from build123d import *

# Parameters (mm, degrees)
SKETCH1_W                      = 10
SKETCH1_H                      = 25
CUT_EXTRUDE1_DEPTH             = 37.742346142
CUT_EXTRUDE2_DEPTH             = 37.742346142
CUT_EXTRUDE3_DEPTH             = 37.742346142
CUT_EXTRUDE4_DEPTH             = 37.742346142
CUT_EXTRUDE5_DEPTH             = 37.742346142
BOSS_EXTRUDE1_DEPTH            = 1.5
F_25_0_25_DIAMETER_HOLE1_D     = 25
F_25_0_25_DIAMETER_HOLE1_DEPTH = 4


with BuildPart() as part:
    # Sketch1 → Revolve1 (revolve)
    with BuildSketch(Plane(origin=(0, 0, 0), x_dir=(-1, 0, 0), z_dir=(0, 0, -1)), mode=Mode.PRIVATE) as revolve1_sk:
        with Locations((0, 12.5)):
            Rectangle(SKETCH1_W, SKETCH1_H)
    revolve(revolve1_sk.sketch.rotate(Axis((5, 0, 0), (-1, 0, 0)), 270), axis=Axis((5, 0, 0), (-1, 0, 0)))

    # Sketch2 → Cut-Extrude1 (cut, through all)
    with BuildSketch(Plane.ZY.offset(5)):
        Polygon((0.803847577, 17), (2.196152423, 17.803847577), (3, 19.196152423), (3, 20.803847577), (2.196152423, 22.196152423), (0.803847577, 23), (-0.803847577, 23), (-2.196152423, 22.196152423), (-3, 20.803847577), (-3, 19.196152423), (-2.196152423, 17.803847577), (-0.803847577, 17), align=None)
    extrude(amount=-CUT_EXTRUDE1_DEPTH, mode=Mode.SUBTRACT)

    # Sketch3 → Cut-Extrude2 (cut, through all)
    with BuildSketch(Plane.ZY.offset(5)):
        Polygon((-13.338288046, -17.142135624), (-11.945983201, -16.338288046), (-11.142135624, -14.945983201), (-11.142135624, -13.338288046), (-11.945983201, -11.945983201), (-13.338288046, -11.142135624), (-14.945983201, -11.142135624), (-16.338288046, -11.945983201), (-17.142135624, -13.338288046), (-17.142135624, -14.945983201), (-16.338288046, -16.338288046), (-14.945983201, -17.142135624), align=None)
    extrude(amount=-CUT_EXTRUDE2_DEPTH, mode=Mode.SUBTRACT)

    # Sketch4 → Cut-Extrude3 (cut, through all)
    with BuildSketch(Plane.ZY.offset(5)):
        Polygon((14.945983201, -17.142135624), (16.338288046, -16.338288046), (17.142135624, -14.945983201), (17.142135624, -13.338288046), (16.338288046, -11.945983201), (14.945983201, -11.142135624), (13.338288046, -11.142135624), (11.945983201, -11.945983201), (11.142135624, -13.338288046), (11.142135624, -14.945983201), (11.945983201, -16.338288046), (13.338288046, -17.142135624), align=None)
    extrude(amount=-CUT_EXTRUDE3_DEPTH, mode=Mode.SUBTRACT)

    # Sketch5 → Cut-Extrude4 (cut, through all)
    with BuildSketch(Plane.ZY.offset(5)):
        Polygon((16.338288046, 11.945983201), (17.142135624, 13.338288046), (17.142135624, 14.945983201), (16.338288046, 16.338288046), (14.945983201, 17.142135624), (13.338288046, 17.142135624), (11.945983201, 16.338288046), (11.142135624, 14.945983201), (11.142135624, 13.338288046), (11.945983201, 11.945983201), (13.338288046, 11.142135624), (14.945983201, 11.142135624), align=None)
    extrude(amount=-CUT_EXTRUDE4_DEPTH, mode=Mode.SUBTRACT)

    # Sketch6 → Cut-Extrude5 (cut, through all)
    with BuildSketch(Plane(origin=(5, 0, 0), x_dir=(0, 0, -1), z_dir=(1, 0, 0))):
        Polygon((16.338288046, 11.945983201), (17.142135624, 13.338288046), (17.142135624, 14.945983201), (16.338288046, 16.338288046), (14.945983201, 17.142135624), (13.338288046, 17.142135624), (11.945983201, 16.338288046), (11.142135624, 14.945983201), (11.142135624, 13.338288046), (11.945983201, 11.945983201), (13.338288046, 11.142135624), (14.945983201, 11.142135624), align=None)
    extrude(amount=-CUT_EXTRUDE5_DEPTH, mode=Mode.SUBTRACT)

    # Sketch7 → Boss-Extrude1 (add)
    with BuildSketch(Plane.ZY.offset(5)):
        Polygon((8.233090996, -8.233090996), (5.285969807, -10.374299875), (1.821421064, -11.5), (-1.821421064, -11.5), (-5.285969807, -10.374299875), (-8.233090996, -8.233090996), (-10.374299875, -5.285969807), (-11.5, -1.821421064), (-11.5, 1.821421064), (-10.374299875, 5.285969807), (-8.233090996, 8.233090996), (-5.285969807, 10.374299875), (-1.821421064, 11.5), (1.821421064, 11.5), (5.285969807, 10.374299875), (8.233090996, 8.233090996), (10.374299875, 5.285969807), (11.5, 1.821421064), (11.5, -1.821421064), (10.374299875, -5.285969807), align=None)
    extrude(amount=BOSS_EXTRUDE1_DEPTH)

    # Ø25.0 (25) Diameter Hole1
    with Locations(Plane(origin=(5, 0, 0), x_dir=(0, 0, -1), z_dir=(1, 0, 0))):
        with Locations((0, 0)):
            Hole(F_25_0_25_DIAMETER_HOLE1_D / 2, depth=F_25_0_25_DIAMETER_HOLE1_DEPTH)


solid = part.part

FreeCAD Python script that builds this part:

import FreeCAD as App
import Part
import Sketcher

V = App.Vector
Q = App.Units.Quantity


def add_polygon(sketch, points):
    """Adds a closed chain of lines whose ends are joined by coincident constraints."""
    first, n = sketch.GeometryCount, len(points)
    for a, b in zip(points, points[1:] + points[:1]):
        sketch.addGeometry(Part.LineSegment(App.Vector(*a, 0), App.Vector(*b, 0)), False)
    for i in range(n):
        sketch.addConstraint(Sketcher.Constraint("Coincident", first + i, 2, first + (i + 1) % n, 1))

doc = App.newDocument("Part")
body = doc.addObject("PartDesign::Body", "Body")

# Sketch on XY plane
sketch1 = body.newObject("Sketcher::SketchObject", "Sketch")
sketch1.AttachmentSupport = (doc.getObject("XY_Plane"), [""])
sketch1.MapMode = "FlatFace"
add_polygon(sketch1, [(5, 25), (5, 0), (-5, 0), (-5, 25)])  # lines 0-3
sketch1.addConstraint([
    Sketcher.Constraint("Vertical", 0),
    Sketcher.Constraint("Horizontal", 1),
    Sketcher.Constraint("Vertical", 2),
    Sketcher.Constraint("Horizontal", 3),
    Sketcher.Constraint("Symmetric", 0, 2, 1, 2, -1, 1),
    Sketcher.Constraint("DistanceX", 1, 2, 1, 1, 10.0),
    Sketcher.Constraint("DistanceY", 0, 2, 0, 1, 25.0),
])
revolution = body.newObject("PartDesign::Revolution", "Revolution")
revolution.Profile = sketch1
revolution.ReferenceAxis = (sketch1, ["H_Axis"])
revolution.Angle = 360

# Sketch on YZ plane
sketch2 = body.newObject("Sketcher::SketchObject", "Sketch001")
sketch2.AttachmentSupport = (doc.getObject("YZ_Plane"), [""])
sketch2.MapMode = "FlatFace"
sketch2.AttachmentOffset = App.Placement(V(0, 0, -5), App.Rotation())
add_polygon(sketch2, [(17, 0.8), (17.8, 2.2), (19.2, 3), (20.8, 3), (22.2, 2.2), (23, 0.8), (23, -0.8), (22.2, -2.2), (20.8, -3), (19.2, -3), (17.8, -2.2), (17, -0.8)])  # lines 0-11
sketch2.addConstraint([
    Sketcher.Constraint("Horizontal", 2),
    Sketcher.Constraint("Vertical", 5),
    Sketcher.Constraint("Horizontal", 8),
    Sketcher.Constraint("Vertical", 11),
    Sketcher.Constraint("Symmetric", 3, 2, 6, 2, -1),
    Sketcher.Constraint("Symmetric", 2, 2, 7, 2, -1),
    Sketcher.Constraint("Symmetric", 0, 2, 9, 2, -1),
    Sketcher.Constraint("Perpendicular", 0, 3),
    Sketcher.Constraint("Perpendicular", 1, 4),
    Sketcher.Constraint("Perpendicular", 3, 6),
    Sketcher.Constraint("Perpendicular", 4, 7),
    Sketcher.Constraint("Perpendicular", 6, 9),
    Sketcher.Constraint("Perpendicular", 7, 10),
    Sketcher.Constraint("Horizontal", 0, 2, 3, 2),
    Sketcher.Constraint("Horizontal", 5, 2, 10, 2),
    Sketcher.Constraint("Equal", 8, 5),
    Sketcher.Constraint("Equal", 0, 1),
    Sketcher.Constraint("Angle", 0, Q("60 deg")),
    Sketcher.Constraint("DistanceY", -1, 1, 1, 2, 3.0),
    Sketcher.Constraint("DistanceX", -1, 1, 4, 2, 23.0),
    Sketcher.Constraint("DistanceX", 0, 2, 2, 2, 3.0),
])
pocket1 = body.newObject("PartDesign::Pocket", "Pocket")
pocket1.Profile = sketch2
pocket1.Type = "ThroughAll"
pocket1.Reversed = True

# Sketch on YZ plane
sketch3 = body.newObject("Sketcher::SketchObject", "Sketch002")
sketch3.AttachmentSupport = (doc.getObject("YZ_Plane"), [""])
sketch3.MapMode = "FlatFace"
sketch3.AttachmentOffset = App.Placement(V(0, 0, -5), App.Rotation())
add_polygon(sketch3, [(-17.1, -13.3), (-16.3, -11.9), (-14.9, -11.1), (-13.3, -11.1), (-11.9, -11.9), (-11.1, -13.3), (-11.1, -14.9), (-11.9, -16.3), (-13.3, -17.1), (-14.9, -17.1), (-16.3, -16.3), (-17.1, -14.9)])  # lines 0-11
sketch3.addConstraint([
    Sketcher.Constraint("Horizontal", 2),
    Sketcher.Constraint("Vertical", 5),
    Sketcher.Constraint("Horizontal", 8),
    Sketcher.Constraint("Vertical", 11),
    Sketcher.Constraint("Perpendicular", 0, 3),
    Sketcher.Constraint("Perpendicular", 1, 4),
    Sketcher.Constraint("Perpendicular", 3, 6),
    Sketcher.Constraint("Perpendicular", 4, 7),
    Sketcher.Constraint("Perpendicular", 6, 9),
    Sketcher.Constraint("Perpendicular", 7, 10),
    Sketcher.Constraint("Horizontal", 0, 2, 3, 2),
    Sketcher.Constraint("Horizontal", 6, 2, 9, 2),
    Sketcher.Constraint("Horizontal", 5, 2, 10, 2),
    Sketcher.Constraint("Horizontal", 4, 2, 11, 2),
    Sketcher.Constraint("Vertical", 3, 2, 6, 2),
    Sketcher.Constraint("Vertical", 2, 2, 7, 2),
    Sketcher.Constraint("Vertical", 1, 2, 8, 2),
    Sketcher.Constraint("Equal", 8, 5),
    Sketcher.Constraint("Equal", 0, 1),
    Sketcher.Constraint("Angle", 0, Q("60 deg")),
    Sketcher.Constraint("DistanceX", 0, 2, 2, 2, 3.0),
    Sketcher.Constraint("DistanceY", 7, 2, 2, 2, 6.0),
    Sketcher.Constraint("DistanceX", 0, 2, -1, 1, 16.338288),
    Sketcher.Constraint("DistanceY", 4, 2, -1, 1, 13.338288),
])
pocket2 = body.newObject("PartDesign::Pocket", "Pocket001")
pocket2.Profile = sketch3
pocket2.Type = "ThroughAll"
pocket2.Reversed = True

# Sketch on YZ plane
sketch4 = body.newObject("Sketcher::SketchObject", "Sketch003")
sketch4.AttachmentSupport = (doc.getObject("YZ_Plane"), [""])
sketch4.MapMode = "FlatFace"
sketch4.AttachmentOffset = App.Placement(V(0, 0, -5), App.Rotation())
add_polygon(sketch4, [(-17.1, 14.9), (-16.3, 16.3), (-14.9, 17.1), (-13.3, 17.1), (-11.9, 16.3), (-11.1, 14.9), (-11.1, 13.3), (-11.9, 11.9), (-13.3, 11.1), (-14.9, 11.1), (-16.3, 11.9), (-17.1, 13.3)])  # lines 0-11
sketch4.addConstraint([
    Sketcher.Constraint("Horizontal", 2),
    Sketcher.Constraint("Vertical", 5),
    Sketcher.Constraint("Horizontal", 8),
    Sketcher.Constraint("Vertical", 11),
    Sketcher.Constraint("Perpendicular", 0, 3),
    Sketcher.Constraint("Perpendicular", 1, 4),
    Sketcher.Constraint("Perpendicular", 3, 6),
    Sketcher.Constraint("Perpendicular", 4, 7),
    Sketcher.Constraint("Perpendicular", 6, 9),
    Sketcher.Constraint("Perpendicular", 7, 10),
    Sketcher.Constraint("Horizontal", 0, 2, 3, 2),
    Sketcher.Constraint("Horizontal", 6, 2, 9, 2),
    Sketcher.Constraint("Horizontal", 5, 2, 10, 2),
    Sketcher.Constraint("Horizontal", 4, 2, 11, 2),
    Sketcher.Constraint("Vertical", 3, 2, 6, 2),
    Sketcher.Constraint("Vertical", 2, 2, 7, 2),
    Sketcher.Constraint("Vertical", 1, 2, 8, 2),
    Sketcher.Constraint("Equal", 8, 5),
    Sketcher.Constraint("Equal", 0, 1),
    Sketcher.Constraint("Angle", 0, Q("60 deg")),
    Sketcher.Constraint("DistanceX", 0, 2, 2, 2, 3.0),
    Sketcher.Constraint("DistanceX", 2, 1, 2, 2, 1.607695),
    Sketcher.Constraint("DistanceX", 0, 2, -1, 1, 16.338288),
    Sketcher.Constraint("DistanceY", -1, 1, 0, 2, 16.338288),
])
pocket3 = body.newObject("PartDesign::Pocket", "Pocket002")
pocket3.Profile = sketch4
pocket3.Type = "ThroughAll"
pocket3.Reversed = True

# Sketch on YZ plane
sketch5 = body.newObject("Sketcher::SketchObject", "Sketch004")
sketch5.AttachmentSupport = (doc.getObject("YZ_Plane"), [""])
sketch5.MapMode = "FlatFace"
sketch5.AttachmentOffset = App.Placement(V(0, 0, -5), App.Rotation())
add_polygon(sketch5, [(11.9, 16.3), (13.3, 17.1), (14.9, 17.1), (16.3, 16.3), (17.1, 14.9), (17.1, 13.3), (16.3, 11.9), (14.9, 11.1), (13.3, 11.1), (11.9, 11.9), (11.1, 13.3), (11.1, 14.9)])  # lines 0-11
sketch5.addConstraint([
    Sketcher.Constraint("Horizontal", 1),
    Sketcher.Constraint("Vertical", 4),
    Sketcher.Constraint("Horizontal", 7),
    Sketcher.Constraint("Vertical", 10),
    Sketcher.Constraint("Perpendicular", 0, 3),
    Sketcher.Constraint("Perpendicular", 2, 5),
    Sketcher.Constraint("Perpendicular", 3, 6),
    Sketcher.Constraint("Perpendicular", 5, 8),
    Sketcher.Constraint("Perpendicular", 6, 9),
    Sketcher.Constraint("Perpendicular", 8, 11),
    Sketcher.Constraint("Horizontal", 5, 2, 8, 2),
    Sketcher.Constraint("Horizontal", 4, 2, 9, 2),
    Sketcher.Constraint("Horizontal", 3, 2, 10, 2),
    Sketcher.Constraint("Horizontal", 2, 2, 11, 2),
    Sketcher.Constraint("Vertical", 2, 2, 5, 2),
    Sketcher.Constraint("Vertical", 1, 2, 6, 2),
    Sketcher.Constraint("Vertical", 0, 2, 7, 2),
    Sketcher.Constraint("Equal", 7, 4),
    Sketcher.Constraint("Equal", 2, 3),
    Sketcher.Constraint("Angle", 0, Q("30 deg")),
    Sketcher.Constraint("DistanceX", 0, 2, 2, 2, 3.0),
    Sketcher.Constraint("DistanceY", 6, 2, 1, 2, 6.0),
    Sketcher.Constraint("DistanceX", -1, 1, 0, 2, 13.338288),
    Sketcher.Constraint("DistanceY", -1, 1, 2, 2, 16.338288),
])
pocket4 = body.newObject("PartDesign::Pocket", "Pocket003")
pocket4.Profile = sketch5
pocket4.Type = "ThroughAll"
pocket4.Reversed = True

# Sketch on YZ plane
sketch6 = body.newObject("Sketcher::SketchObject", "Sketch005")
sketch6.AttachmentSupport = (doc.getObject("YZ_Plane"), [""])
sketch6.MapMode = "FlatFace"
sketch6.AttachmentOffset = App.Placement(V(0, 0, 5), App.Rotation())
add_polygon(sketch6, [(11.9, -16.3), (13.3, -17.1), (14.9, -17.1), (16.3, -16.3), (17.1, -14.9), (17.1, -13.3), (16.3, -11.9), (14.9, -11.1), (13.3, -11.1), (11.9, -11.9), (11.1, -13.3), (11.1, -14.9)])  # lines 0-11
sketch6.addConstraint([
    Sketcher.Constraint("Horizontal", 1),
    Sketcher.Constraint("Vertical", 4),
    Sketcher.Constraint("Horizontal", 7),
    Sketcher.Constraint("Vertical", 10),
    Sketcher.Constraint("Perpendicular", 0, 3),
    Sketcher.Constraint("Perpendicular", 2, 5),
    Sketcher.Constraint("Perpendicular", 3, 6),
    Sketcher.Constraint("Perpendicular", 5, 8),
    Sketcher.Constraint("Perpendicular", 6, 9),
    Sketcher.Constraint("Perpendicular", 8, 11),
    Sketcher.Constraint("Horizontal", 5, 2, 8, 2),
    Sketcher.Constraint("Horizontal", 4, 2, 9, 2),
    Sketcher.Constraint("Horizontal", 3, 2, 10, 2),
    Sketcher.Constraint("Horizontal", 2, 2, 11, 2),
    Sketcher.Constraint("Vertical", 2, 2, 5, 2),
    Sketcher.Constraint("Vertical", 1, 2, 6, 2),
    Sketcher.Constraint("Vertical", 0, 2, 7, 2),
    Sketcher.Constraint("Equal", 7, 4),
    Sketcher.Constraint("Equal", 2, 3),
    Sketcher.Constraint("Angle", 0, Q("-30 deg")),
    Sketcher.Constraint("DistanceX", 0, 2, 2, 2, 3.0),
    Sketcher.Constraint("DistanceY", 1, 2, 6, 2, 6.0),
    Sketcher.Constraint("DistanceX", -1, 1, 0, 2, 13.338288),
    Sketcher.Constraint("DistanceY", 2, 2, -1, 1, 16.338288),
])
pocket5 = body.newObject("PartDesign::Pocket", "Pocket004")
pocket5.Profile = sketch6
pocket5.Type = "ThroughAll"

# Sketch on YZ plane
sketch7 = body.newObject("Sketcher::SketchObject", "Sketch006")
sketch7.AttachmentSupport = (doc.getObject("YZ_Plane"), [""])
sketch7.MapMode = "FlatFace"
sketch7.AttachmentOffset = App.Placement(V(0, 0, -5), App.Rotation())
add_polygon(sketch7, [(-10.4, 5.3), (-8.2, 8.2), (-5.3, 10.4), (-1.8, 11.5), (1.8, 11.5), (5.3, 10.4), (8.2, 8.2), (10.4, 5.3), (11.5, 1.8), (11.5, -1.8), (10.4, -5.3), (8.2, -8.2), (5.3, -10.4), (1.8, -11.5), (-1.8, -11.5), (-5.3, -10.4), (-8.2, -8.2), (-10.4, -5.3), (-11.5, -1.8), (-11.5, 1.8)])  # lines 0-19
sketch7.addConstraint([
    Sketcher.Constraint("Horizontal", 3),
    Sketcher.Constraint("Vertical", 8),
    Sketcher.Constraint("Horizontal", 13),
    Sketcher.Constraint("Vertical", 18),
    Sketcher.Constraint("Symmetric", 0, 2, 10, 2, -1, 1),
    Sketcher.Constraint("Symmetric", 1, 2, 11, 2, -1, 1),
    Sketcher.Constraint("Symmetric", 2, 2, 12, 2, -1, 1),
    Sketcher.Constraint("Symmetric", 4, 2, 14, 2, -1, 1),
    Sketcher.Constraint("Symmetric", 5, 2, 15, 2, -1, 1),
    Sketcher.Constraint("Symmetric", 6, 2, 16, 2, -1, 1),
    Sketcher.Constraint("Symmetric", 7, 2, 17, 2, -1, 1),
    Sketcher.Constraint("Symmetric", 9, 2, 19, 2, -1, 1),
    Sketcher.Constraint("Symmetric", 1, 2, 4, 2, -2),
    Sketcher.Constraint("Symmetric", 0, 2, 5, 2, -2),
    Sketcher.Constraint("Symmetric", 9, 2, 16, 2, -2),
    Sketcher.Constraint("Perpendicular", 0, 5),
    Sketcher.Constraint("Perpendicular", 2, 7),
    Sketcher.Constraint("Perpendicular", 4, 9),
    Sketcher.Constraint("Perpendicular", 9, 14),
    Sketcher.Constraint("Perpendicular", 14, 19),
    Sketcher.Constraint("Horizontal", 8, 2, 17, 2),
    Sketcher.Constraint("Equal", 13, 8),
    Sketcher.Constraint("Equal", 0, 1),
    Sketcher.Constraint("Equal", 1, 2),
    Sketcher.Constraint("Equal", 6, 7),
    Sketcher.Constraint("Angle", 0, Q("54 deg")),
    Sketcher.Constraint("Angle", 2, Q("18 deg")),
    Sketcher.Constraint("DistanceY", -1, 1, 2, 2, 11.5),
    Sketcher.Constraint("DistanceY", -1, 1, 1, 2, 10.3743),
])
pad1 = body.newObject("PartDesign::Pad", "Pad")
pad1.Profile = sketch7
pad1.Length = 1.5
pad1.Reversed = True

# Sketch on YZ plane
sketch8 = body.newObject("Sketcher::SketchObject", "Sketch007")
sketch8.AttachmentSupport = (doc.getObject("YZ_Plane"), [""])
sketch8.MapMode = "FlatFace"
sketch8.AttachmentOffset = App.Placement(V(0, 0, 5), App.Rotation())
sketch8.addGeometry(Part.Circle(V(0, 0, 0), V(0, 0, 1), 12), False)
sketch8.addConstraint([
    Sketcher.Constraint("Coincident", 0, 3, -1, 1),
    Sketcher.Constraint("Diameter", 0, 25.0),
])
doc.recompute()
hole = body.newObject("PartDesign::Hole", "Hole")
hole.Profile = sketch8
hole.ThreadType = "None"
hole.Diameter = 25
hole.DepthType = "Dimension"
hole.Depth = 4
hole.DrillPoint = "Flat"

doc.recompute()
